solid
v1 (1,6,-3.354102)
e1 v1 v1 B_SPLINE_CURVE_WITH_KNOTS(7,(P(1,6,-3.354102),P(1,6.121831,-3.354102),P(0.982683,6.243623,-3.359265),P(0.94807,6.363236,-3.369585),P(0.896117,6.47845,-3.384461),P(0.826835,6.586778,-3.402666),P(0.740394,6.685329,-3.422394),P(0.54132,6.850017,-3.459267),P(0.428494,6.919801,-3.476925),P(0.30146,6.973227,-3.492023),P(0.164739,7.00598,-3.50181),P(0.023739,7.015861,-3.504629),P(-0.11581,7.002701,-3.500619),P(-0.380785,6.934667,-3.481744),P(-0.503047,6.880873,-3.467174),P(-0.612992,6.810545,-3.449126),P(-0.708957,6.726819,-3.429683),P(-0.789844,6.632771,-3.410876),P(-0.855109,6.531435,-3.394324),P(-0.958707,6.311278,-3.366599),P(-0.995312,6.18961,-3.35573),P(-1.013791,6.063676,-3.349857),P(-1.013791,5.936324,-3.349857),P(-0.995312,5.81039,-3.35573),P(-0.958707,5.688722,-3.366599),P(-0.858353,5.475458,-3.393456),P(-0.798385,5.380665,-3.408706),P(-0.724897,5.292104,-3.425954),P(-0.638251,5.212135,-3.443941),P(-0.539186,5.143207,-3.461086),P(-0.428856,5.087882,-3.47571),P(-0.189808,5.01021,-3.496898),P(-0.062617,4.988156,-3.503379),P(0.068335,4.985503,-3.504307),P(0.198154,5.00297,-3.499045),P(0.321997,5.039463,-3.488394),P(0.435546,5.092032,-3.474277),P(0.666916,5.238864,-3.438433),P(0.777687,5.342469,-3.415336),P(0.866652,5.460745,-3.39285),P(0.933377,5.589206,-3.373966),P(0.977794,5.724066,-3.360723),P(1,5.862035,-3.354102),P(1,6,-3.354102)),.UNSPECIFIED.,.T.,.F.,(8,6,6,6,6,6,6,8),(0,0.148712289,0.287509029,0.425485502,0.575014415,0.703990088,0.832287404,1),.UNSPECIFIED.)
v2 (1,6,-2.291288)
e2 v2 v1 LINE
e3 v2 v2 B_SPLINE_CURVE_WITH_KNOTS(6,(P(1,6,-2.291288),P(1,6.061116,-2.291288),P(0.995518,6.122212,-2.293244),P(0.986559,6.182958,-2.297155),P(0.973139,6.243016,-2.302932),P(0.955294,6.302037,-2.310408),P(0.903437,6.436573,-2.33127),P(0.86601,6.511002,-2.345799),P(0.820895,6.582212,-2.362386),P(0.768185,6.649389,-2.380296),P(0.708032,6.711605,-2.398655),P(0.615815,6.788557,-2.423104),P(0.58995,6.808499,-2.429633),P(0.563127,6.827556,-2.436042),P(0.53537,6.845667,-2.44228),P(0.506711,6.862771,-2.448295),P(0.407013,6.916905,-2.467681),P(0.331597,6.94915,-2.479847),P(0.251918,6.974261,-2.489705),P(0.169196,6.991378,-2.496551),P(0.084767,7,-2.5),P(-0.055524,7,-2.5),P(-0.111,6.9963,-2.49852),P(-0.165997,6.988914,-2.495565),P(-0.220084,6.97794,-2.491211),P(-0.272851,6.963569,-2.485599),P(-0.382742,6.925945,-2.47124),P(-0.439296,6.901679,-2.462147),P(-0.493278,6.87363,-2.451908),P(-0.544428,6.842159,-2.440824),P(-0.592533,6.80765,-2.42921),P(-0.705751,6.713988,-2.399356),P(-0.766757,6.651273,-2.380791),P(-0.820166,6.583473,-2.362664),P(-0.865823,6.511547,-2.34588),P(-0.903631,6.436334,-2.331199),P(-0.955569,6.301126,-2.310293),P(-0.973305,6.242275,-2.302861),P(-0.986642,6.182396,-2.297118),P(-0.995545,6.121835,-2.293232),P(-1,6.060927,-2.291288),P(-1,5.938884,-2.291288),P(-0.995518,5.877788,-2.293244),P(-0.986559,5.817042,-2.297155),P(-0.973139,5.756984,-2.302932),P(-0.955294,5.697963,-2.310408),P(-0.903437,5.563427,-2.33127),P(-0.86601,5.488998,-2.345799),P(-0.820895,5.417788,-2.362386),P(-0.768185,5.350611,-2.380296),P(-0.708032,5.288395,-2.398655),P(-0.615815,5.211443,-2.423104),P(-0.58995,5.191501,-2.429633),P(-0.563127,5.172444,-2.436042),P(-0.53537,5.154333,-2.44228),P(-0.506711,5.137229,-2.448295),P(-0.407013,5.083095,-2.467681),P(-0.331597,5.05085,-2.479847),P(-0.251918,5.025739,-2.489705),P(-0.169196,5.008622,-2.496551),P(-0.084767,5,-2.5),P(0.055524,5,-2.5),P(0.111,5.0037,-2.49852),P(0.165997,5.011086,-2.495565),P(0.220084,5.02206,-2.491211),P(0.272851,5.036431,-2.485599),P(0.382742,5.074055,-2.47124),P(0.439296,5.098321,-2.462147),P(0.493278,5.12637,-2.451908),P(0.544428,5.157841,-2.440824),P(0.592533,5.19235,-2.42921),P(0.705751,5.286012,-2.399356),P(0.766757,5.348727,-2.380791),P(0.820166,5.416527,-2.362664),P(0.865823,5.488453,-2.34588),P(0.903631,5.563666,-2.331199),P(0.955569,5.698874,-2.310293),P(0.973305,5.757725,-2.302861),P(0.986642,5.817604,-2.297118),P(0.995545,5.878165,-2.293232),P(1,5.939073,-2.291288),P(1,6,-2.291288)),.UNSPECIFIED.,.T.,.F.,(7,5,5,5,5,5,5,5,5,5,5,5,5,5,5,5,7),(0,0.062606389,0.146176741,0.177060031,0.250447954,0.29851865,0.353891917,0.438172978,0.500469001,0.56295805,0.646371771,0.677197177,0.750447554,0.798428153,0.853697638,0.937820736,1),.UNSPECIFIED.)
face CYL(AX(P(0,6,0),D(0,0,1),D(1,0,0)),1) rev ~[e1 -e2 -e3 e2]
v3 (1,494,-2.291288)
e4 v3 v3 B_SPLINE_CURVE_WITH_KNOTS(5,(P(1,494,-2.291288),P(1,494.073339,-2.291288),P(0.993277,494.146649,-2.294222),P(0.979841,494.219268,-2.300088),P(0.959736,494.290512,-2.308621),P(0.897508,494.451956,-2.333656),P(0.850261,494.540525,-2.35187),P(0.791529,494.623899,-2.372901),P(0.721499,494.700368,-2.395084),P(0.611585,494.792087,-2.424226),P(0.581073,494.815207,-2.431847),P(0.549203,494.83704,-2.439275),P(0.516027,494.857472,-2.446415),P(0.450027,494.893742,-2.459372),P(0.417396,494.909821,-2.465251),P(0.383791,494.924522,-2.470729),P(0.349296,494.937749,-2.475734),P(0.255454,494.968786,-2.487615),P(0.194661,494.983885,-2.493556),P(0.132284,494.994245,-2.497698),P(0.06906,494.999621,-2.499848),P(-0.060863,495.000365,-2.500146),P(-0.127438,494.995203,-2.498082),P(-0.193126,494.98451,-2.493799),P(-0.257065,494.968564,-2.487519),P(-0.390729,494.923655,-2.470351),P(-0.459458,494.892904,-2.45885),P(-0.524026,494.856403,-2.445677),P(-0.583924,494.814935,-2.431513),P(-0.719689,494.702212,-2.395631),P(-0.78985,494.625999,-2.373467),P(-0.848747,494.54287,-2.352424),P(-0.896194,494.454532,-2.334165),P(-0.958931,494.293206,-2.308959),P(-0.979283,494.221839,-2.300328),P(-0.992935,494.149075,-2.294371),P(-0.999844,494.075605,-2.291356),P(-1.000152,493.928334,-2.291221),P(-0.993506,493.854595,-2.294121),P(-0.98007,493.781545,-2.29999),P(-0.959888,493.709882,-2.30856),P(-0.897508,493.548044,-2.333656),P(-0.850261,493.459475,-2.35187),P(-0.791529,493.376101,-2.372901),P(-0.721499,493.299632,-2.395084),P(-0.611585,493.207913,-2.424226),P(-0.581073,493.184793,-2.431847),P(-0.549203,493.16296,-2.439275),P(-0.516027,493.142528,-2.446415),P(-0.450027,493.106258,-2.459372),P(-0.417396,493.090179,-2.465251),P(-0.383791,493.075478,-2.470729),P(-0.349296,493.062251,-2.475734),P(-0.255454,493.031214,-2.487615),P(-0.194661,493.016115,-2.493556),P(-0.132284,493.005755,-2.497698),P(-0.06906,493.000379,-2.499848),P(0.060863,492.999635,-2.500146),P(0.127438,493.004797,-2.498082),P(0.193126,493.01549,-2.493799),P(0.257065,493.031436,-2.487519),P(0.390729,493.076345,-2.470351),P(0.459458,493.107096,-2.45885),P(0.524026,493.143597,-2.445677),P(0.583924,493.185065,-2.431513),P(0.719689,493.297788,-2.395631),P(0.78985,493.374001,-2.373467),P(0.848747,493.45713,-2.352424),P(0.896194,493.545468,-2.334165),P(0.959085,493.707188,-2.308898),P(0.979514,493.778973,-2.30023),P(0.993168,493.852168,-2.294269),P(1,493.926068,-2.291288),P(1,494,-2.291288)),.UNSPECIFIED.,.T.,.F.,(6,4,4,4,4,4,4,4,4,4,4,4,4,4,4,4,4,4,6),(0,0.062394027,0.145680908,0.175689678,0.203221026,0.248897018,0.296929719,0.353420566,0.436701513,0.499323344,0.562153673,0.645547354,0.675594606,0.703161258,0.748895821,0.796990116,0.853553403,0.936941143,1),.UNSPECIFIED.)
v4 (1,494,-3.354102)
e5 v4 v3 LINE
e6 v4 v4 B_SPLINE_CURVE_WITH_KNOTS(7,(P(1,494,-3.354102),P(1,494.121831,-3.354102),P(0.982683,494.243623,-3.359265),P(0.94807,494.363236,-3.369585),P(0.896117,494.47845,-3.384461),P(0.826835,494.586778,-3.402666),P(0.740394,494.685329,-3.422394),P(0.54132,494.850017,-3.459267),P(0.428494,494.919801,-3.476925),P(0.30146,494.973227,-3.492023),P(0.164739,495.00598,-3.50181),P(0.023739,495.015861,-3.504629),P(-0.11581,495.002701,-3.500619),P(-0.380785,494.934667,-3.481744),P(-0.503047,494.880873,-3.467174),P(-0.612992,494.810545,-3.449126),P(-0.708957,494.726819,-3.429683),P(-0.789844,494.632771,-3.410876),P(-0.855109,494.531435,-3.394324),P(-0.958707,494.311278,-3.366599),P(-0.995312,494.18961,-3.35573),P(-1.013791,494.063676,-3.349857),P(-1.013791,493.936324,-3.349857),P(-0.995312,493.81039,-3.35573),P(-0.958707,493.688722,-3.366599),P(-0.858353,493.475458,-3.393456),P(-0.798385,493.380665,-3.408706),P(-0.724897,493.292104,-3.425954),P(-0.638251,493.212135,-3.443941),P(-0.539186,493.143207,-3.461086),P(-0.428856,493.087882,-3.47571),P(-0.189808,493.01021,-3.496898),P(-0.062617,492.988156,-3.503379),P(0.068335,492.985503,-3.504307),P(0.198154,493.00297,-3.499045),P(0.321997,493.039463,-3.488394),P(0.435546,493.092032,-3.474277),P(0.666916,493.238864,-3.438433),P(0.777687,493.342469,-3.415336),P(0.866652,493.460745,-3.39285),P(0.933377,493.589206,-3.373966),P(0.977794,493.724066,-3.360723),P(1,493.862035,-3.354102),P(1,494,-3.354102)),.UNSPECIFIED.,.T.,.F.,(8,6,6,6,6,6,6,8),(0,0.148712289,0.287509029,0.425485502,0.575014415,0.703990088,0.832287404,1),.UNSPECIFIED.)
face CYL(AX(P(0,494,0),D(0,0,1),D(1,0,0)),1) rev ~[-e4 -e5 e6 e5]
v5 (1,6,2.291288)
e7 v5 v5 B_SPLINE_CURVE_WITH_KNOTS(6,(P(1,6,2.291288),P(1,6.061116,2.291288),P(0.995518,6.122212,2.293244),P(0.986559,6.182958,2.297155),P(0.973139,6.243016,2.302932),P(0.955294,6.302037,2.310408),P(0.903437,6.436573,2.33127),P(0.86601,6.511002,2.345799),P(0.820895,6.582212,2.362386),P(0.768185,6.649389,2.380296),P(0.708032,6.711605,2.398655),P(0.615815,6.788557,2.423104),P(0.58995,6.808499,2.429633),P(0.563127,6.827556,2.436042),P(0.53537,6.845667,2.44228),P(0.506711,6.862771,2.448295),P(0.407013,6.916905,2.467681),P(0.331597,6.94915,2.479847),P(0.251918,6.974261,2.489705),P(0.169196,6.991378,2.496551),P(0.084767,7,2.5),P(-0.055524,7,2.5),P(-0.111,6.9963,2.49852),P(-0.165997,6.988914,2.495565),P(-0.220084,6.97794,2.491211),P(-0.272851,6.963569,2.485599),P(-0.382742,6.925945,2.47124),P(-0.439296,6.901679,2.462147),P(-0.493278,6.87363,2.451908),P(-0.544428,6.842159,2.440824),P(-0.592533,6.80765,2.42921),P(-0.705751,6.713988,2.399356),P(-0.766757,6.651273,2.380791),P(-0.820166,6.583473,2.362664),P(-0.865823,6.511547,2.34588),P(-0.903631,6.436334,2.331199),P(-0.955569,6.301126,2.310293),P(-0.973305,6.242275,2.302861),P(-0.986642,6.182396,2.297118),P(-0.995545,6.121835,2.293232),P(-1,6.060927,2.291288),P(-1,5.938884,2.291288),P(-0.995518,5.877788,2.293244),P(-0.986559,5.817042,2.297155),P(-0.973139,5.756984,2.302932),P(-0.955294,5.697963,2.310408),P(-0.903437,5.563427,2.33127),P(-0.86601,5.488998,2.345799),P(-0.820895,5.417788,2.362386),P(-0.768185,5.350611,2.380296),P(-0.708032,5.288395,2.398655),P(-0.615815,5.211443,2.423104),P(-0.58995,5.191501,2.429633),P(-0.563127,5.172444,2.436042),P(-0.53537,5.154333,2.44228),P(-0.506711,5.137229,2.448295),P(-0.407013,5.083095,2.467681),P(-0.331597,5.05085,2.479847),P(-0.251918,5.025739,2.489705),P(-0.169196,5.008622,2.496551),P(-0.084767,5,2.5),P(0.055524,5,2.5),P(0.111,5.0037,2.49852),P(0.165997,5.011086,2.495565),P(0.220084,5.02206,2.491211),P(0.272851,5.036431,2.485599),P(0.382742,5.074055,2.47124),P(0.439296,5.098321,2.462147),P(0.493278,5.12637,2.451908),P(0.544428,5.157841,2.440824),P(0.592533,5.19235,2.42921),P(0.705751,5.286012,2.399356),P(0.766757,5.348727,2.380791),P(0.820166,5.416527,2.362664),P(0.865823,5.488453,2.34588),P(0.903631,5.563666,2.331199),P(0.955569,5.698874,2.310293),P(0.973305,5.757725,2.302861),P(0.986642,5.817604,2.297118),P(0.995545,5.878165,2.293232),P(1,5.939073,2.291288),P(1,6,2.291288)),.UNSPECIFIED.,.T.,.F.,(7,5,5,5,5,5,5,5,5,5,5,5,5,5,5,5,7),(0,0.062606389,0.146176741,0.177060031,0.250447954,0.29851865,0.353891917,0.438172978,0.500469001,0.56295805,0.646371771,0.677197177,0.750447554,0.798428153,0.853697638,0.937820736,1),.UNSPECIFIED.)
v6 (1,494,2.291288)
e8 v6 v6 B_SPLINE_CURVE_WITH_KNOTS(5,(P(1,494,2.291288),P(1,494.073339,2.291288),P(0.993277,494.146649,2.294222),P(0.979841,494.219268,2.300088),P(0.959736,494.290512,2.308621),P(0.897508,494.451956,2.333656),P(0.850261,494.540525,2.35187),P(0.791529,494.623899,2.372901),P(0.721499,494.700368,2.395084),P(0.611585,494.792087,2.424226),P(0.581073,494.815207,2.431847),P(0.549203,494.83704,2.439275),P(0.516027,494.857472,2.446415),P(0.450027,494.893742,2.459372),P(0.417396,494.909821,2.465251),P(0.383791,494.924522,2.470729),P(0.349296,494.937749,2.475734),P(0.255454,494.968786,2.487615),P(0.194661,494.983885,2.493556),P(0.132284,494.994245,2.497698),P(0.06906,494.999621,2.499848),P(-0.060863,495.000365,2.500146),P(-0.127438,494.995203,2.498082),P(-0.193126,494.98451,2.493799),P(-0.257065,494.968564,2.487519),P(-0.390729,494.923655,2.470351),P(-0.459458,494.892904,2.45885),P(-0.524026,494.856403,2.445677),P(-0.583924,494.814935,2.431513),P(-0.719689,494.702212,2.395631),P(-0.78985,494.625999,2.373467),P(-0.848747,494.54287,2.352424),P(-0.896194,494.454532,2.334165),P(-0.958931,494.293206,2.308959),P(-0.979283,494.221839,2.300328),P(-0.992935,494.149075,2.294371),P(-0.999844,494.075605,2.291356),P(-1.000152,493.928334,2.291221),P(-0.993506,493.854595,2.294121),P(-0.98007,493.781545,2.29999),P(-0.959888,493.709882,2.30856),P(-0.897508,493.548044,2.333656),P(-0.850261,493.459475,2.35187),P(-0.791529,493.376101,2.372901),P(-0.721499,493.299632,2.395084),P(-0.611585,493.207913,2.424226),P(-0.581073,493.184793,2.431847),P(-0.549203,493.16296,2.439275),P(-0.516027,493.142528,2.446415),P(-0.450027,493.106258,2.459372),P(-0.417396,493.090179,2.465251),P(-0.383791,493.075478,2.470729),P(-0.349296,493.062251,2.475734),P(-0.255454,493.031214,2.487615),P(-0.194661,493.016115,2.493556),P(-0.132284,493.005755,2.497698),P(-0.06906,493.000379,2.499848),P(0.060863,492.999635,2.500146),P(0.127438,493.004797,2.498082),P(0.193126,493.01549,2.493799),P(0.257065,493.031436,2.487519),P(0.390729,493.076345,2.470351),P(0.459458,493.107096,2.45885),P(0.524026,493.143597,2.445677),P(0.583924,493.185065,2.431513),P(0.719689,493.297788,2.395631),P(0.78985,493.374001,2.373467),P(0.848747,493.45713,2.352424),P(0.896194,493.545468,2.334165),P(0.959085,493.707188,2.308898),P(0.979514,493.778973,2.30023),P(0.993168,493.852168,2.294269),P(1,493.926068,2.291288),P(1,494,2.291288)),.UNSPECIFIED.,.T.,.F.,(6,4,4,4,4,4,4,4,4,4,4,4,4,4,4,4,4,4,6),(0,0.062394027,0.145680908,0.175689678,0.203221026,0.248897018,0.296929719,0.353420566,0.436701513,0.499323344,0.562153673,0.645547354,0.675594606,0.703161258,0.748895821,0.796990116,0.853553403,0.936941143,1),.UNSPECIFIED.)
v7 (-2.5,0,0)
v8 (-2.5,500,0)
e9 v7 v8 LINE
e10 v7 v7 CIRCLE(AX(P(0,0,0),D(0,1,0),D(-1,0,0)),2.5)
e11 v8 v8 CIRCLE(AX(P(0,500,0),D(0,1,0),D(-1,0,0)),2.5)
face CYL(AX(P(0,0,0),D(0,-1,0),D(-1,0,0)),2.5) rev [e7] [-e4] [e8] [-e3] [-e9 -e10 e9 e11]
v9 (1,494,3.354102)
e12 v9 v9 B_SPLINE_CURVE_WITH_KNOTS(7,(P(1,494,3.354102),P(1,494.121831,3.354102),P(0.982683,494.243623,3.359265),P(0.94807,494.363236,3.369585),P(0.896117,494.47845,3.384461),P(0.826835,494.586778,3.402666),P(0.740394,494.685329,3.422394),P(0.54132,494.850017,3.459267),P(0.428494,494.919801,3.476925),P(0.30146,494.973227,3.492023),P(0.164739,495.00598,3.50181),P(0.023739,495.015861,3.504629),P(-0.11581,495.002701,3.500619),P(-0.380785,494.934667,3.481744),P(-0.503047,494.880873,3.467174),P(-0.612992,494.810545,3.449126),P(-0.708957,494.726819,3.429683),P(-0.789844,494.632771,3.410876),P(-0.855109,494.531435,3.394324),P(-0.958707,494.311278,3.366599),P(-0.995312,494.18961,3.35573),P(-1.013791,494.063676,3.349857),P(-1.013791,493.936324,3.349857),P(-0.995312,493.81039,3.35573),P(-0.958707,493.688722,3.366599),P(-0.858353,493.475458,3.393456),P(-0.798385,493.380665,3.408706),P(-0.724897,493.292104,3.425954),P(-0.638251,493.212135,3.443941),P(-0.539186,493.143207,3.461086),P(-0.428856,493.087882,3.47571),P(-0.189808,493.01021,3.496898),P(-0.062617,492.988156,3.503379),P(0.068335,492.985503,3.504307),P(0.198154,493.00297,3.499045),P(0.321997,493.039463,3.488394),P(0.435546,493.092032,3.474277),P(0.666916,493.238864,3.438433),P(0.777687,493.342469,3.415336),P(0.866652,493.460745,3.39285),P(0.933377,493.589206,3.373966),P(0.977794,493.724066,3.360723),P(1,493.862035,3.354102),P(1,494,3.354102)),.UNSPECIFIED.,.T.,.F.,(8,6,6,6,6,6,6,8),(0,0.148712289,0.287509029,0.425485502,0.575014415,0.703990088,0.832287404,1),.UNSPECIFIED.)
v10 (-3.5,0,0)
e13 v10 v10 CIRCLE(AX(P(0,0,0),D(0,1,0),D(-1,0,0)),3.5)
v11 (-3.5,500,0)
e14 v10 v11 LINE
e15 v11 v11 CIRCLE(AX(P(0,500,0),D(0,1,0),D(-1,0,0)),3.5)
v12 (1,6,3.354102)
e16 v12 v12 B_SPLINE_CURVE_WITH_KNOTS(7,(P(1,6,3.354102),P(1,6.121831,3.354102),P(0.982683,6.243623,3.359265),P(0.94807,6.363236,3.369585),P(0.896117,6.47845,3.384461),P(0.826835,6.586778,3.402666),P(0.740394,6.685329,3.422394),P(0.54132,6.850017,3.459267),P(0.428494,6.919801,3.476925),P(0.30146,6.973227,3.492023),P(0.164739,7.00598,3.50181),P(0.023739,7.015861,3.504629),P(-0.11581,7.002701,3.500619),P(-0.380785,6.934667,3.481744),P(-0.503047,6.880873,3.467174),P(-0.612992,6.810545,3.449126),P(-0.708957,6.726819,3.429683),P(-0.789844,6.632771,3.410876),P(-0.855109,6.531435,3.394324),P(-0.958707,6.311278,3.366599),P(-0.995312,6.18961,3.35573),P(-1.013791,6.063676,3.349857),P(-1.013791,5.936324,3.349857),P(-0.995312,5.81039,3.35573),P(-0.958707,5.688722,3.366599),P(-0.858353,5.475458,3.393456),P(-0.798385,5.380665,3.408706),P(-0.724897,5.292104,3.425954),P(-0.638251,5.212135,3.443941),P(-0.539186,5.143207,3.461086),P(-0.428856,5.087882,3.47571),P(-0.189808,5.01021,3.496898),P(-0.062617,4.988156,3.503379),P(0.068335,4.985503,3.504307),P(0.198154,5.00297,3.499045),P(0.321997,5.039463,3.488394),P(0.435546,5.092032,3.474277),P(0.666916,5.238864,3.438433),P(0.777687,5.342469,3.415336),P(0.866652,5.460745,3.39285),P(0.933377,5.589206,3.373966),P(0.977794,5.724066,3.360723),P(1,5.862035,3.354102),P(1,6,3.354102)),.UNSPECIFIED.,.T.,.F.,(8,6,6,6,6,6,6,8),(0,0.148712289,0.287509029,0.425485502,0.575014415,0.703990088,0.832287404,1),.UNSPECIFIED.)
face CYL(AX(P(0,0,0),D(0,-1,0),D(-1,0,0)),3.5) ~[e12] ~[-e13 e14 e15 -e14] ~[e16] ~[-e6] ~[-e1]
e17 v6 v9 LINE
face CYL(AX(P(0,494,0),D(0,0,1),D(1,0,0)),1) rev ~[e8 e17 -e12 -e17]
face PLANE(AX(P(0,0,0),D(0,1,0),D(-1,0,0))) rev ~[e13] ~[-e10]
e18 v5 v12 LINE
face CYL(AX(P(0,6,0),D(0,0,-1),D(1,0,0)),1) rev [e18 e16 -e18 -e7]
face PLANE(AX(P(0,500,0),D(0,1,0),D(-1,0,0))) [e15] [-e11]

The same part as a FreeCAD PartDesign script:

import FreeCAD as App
import Part
import Sketcher
from FreeCAD import Vector

doc = App.newDocument("Part")
body = doc.addObject("PartDesign::Body", "Body")

sketch1 = body.newObject("Sketcher::SketchObject", "Sketch")
sketch1.AttachmentSupport = (doc.getObject("XZ_Plane"), [""])
sketch1.MapMode = "FlatFace"
sketch1.addGeometry(Part.Circle(Vector(0, 0, 0), Vector(0, 0, 1), 3.5), False)
sketch1.addGeometry(Part.Circle(Vector(0, 0, 0), Vector(0, 0, 1), 2.5), False)
sketch1.addConstraint(Sketcher.Constraint("Coincident", 0, 3, -1, 1))
sketch1.addConstraint(Sketcher.Constraint("Coincident", 1, 3, -1, 1))
sketch1.addConstraint(Sketcher.Constraint("Diameter", 0, 7.0))
sketch1.addConstraint(Sketcher.Constraint("Diameter", 1, 5.0))
pad1 = body.newObject("PartDesign::Pad", "Pad")
pad1.Profile = sketch1
pad1.Length = 500
pad1.Reversed = True

sketch2 = body.newObject("Sketcher::SketchObject", "Sketch001")
sketch2.AttachmentSupport = (doc.getObject("XY_Plane"), [""])
sketch2.MapMode = "FlatFace"
sketch2.addGeometry(Part.Circle(Vector(0, 6, 0), Vector(0, 0, 1), 1), False)
sketch2.addGeometry(Part.Circle(Vector(0, 494, 0), Vector(0, 0, 1), 1), False)
sketch2.addConstraint(Sketcher.Constraint("Equal", 0, 1))
sketch2.addConstraint(Sketcher.Constraint("PointOnObject", 0, 3, -2))
sketch2.addConstraint(Sketcher.Constraint("PointOnObject", 1, 3, -2))
sketch2.addConstraint(Sketcher.Constraint("Diameter", 0, 2.0))
sketch2.addConstraint(Sketcher.Constraint("DistanceY", -1, 1, 0, 3, 6.0))
sketch2.addConstraint(Sketcher.Constraint("DistanceY", -1, 1, 1, 3, 494.0))
pocket1 = body.newObject("PartDesign::Pocket", "Pocket")
pocket1.Profile = sketch2
pocket1.Type = "ThroughAll"
pocket1.Midplane = True

doc.recompute()
